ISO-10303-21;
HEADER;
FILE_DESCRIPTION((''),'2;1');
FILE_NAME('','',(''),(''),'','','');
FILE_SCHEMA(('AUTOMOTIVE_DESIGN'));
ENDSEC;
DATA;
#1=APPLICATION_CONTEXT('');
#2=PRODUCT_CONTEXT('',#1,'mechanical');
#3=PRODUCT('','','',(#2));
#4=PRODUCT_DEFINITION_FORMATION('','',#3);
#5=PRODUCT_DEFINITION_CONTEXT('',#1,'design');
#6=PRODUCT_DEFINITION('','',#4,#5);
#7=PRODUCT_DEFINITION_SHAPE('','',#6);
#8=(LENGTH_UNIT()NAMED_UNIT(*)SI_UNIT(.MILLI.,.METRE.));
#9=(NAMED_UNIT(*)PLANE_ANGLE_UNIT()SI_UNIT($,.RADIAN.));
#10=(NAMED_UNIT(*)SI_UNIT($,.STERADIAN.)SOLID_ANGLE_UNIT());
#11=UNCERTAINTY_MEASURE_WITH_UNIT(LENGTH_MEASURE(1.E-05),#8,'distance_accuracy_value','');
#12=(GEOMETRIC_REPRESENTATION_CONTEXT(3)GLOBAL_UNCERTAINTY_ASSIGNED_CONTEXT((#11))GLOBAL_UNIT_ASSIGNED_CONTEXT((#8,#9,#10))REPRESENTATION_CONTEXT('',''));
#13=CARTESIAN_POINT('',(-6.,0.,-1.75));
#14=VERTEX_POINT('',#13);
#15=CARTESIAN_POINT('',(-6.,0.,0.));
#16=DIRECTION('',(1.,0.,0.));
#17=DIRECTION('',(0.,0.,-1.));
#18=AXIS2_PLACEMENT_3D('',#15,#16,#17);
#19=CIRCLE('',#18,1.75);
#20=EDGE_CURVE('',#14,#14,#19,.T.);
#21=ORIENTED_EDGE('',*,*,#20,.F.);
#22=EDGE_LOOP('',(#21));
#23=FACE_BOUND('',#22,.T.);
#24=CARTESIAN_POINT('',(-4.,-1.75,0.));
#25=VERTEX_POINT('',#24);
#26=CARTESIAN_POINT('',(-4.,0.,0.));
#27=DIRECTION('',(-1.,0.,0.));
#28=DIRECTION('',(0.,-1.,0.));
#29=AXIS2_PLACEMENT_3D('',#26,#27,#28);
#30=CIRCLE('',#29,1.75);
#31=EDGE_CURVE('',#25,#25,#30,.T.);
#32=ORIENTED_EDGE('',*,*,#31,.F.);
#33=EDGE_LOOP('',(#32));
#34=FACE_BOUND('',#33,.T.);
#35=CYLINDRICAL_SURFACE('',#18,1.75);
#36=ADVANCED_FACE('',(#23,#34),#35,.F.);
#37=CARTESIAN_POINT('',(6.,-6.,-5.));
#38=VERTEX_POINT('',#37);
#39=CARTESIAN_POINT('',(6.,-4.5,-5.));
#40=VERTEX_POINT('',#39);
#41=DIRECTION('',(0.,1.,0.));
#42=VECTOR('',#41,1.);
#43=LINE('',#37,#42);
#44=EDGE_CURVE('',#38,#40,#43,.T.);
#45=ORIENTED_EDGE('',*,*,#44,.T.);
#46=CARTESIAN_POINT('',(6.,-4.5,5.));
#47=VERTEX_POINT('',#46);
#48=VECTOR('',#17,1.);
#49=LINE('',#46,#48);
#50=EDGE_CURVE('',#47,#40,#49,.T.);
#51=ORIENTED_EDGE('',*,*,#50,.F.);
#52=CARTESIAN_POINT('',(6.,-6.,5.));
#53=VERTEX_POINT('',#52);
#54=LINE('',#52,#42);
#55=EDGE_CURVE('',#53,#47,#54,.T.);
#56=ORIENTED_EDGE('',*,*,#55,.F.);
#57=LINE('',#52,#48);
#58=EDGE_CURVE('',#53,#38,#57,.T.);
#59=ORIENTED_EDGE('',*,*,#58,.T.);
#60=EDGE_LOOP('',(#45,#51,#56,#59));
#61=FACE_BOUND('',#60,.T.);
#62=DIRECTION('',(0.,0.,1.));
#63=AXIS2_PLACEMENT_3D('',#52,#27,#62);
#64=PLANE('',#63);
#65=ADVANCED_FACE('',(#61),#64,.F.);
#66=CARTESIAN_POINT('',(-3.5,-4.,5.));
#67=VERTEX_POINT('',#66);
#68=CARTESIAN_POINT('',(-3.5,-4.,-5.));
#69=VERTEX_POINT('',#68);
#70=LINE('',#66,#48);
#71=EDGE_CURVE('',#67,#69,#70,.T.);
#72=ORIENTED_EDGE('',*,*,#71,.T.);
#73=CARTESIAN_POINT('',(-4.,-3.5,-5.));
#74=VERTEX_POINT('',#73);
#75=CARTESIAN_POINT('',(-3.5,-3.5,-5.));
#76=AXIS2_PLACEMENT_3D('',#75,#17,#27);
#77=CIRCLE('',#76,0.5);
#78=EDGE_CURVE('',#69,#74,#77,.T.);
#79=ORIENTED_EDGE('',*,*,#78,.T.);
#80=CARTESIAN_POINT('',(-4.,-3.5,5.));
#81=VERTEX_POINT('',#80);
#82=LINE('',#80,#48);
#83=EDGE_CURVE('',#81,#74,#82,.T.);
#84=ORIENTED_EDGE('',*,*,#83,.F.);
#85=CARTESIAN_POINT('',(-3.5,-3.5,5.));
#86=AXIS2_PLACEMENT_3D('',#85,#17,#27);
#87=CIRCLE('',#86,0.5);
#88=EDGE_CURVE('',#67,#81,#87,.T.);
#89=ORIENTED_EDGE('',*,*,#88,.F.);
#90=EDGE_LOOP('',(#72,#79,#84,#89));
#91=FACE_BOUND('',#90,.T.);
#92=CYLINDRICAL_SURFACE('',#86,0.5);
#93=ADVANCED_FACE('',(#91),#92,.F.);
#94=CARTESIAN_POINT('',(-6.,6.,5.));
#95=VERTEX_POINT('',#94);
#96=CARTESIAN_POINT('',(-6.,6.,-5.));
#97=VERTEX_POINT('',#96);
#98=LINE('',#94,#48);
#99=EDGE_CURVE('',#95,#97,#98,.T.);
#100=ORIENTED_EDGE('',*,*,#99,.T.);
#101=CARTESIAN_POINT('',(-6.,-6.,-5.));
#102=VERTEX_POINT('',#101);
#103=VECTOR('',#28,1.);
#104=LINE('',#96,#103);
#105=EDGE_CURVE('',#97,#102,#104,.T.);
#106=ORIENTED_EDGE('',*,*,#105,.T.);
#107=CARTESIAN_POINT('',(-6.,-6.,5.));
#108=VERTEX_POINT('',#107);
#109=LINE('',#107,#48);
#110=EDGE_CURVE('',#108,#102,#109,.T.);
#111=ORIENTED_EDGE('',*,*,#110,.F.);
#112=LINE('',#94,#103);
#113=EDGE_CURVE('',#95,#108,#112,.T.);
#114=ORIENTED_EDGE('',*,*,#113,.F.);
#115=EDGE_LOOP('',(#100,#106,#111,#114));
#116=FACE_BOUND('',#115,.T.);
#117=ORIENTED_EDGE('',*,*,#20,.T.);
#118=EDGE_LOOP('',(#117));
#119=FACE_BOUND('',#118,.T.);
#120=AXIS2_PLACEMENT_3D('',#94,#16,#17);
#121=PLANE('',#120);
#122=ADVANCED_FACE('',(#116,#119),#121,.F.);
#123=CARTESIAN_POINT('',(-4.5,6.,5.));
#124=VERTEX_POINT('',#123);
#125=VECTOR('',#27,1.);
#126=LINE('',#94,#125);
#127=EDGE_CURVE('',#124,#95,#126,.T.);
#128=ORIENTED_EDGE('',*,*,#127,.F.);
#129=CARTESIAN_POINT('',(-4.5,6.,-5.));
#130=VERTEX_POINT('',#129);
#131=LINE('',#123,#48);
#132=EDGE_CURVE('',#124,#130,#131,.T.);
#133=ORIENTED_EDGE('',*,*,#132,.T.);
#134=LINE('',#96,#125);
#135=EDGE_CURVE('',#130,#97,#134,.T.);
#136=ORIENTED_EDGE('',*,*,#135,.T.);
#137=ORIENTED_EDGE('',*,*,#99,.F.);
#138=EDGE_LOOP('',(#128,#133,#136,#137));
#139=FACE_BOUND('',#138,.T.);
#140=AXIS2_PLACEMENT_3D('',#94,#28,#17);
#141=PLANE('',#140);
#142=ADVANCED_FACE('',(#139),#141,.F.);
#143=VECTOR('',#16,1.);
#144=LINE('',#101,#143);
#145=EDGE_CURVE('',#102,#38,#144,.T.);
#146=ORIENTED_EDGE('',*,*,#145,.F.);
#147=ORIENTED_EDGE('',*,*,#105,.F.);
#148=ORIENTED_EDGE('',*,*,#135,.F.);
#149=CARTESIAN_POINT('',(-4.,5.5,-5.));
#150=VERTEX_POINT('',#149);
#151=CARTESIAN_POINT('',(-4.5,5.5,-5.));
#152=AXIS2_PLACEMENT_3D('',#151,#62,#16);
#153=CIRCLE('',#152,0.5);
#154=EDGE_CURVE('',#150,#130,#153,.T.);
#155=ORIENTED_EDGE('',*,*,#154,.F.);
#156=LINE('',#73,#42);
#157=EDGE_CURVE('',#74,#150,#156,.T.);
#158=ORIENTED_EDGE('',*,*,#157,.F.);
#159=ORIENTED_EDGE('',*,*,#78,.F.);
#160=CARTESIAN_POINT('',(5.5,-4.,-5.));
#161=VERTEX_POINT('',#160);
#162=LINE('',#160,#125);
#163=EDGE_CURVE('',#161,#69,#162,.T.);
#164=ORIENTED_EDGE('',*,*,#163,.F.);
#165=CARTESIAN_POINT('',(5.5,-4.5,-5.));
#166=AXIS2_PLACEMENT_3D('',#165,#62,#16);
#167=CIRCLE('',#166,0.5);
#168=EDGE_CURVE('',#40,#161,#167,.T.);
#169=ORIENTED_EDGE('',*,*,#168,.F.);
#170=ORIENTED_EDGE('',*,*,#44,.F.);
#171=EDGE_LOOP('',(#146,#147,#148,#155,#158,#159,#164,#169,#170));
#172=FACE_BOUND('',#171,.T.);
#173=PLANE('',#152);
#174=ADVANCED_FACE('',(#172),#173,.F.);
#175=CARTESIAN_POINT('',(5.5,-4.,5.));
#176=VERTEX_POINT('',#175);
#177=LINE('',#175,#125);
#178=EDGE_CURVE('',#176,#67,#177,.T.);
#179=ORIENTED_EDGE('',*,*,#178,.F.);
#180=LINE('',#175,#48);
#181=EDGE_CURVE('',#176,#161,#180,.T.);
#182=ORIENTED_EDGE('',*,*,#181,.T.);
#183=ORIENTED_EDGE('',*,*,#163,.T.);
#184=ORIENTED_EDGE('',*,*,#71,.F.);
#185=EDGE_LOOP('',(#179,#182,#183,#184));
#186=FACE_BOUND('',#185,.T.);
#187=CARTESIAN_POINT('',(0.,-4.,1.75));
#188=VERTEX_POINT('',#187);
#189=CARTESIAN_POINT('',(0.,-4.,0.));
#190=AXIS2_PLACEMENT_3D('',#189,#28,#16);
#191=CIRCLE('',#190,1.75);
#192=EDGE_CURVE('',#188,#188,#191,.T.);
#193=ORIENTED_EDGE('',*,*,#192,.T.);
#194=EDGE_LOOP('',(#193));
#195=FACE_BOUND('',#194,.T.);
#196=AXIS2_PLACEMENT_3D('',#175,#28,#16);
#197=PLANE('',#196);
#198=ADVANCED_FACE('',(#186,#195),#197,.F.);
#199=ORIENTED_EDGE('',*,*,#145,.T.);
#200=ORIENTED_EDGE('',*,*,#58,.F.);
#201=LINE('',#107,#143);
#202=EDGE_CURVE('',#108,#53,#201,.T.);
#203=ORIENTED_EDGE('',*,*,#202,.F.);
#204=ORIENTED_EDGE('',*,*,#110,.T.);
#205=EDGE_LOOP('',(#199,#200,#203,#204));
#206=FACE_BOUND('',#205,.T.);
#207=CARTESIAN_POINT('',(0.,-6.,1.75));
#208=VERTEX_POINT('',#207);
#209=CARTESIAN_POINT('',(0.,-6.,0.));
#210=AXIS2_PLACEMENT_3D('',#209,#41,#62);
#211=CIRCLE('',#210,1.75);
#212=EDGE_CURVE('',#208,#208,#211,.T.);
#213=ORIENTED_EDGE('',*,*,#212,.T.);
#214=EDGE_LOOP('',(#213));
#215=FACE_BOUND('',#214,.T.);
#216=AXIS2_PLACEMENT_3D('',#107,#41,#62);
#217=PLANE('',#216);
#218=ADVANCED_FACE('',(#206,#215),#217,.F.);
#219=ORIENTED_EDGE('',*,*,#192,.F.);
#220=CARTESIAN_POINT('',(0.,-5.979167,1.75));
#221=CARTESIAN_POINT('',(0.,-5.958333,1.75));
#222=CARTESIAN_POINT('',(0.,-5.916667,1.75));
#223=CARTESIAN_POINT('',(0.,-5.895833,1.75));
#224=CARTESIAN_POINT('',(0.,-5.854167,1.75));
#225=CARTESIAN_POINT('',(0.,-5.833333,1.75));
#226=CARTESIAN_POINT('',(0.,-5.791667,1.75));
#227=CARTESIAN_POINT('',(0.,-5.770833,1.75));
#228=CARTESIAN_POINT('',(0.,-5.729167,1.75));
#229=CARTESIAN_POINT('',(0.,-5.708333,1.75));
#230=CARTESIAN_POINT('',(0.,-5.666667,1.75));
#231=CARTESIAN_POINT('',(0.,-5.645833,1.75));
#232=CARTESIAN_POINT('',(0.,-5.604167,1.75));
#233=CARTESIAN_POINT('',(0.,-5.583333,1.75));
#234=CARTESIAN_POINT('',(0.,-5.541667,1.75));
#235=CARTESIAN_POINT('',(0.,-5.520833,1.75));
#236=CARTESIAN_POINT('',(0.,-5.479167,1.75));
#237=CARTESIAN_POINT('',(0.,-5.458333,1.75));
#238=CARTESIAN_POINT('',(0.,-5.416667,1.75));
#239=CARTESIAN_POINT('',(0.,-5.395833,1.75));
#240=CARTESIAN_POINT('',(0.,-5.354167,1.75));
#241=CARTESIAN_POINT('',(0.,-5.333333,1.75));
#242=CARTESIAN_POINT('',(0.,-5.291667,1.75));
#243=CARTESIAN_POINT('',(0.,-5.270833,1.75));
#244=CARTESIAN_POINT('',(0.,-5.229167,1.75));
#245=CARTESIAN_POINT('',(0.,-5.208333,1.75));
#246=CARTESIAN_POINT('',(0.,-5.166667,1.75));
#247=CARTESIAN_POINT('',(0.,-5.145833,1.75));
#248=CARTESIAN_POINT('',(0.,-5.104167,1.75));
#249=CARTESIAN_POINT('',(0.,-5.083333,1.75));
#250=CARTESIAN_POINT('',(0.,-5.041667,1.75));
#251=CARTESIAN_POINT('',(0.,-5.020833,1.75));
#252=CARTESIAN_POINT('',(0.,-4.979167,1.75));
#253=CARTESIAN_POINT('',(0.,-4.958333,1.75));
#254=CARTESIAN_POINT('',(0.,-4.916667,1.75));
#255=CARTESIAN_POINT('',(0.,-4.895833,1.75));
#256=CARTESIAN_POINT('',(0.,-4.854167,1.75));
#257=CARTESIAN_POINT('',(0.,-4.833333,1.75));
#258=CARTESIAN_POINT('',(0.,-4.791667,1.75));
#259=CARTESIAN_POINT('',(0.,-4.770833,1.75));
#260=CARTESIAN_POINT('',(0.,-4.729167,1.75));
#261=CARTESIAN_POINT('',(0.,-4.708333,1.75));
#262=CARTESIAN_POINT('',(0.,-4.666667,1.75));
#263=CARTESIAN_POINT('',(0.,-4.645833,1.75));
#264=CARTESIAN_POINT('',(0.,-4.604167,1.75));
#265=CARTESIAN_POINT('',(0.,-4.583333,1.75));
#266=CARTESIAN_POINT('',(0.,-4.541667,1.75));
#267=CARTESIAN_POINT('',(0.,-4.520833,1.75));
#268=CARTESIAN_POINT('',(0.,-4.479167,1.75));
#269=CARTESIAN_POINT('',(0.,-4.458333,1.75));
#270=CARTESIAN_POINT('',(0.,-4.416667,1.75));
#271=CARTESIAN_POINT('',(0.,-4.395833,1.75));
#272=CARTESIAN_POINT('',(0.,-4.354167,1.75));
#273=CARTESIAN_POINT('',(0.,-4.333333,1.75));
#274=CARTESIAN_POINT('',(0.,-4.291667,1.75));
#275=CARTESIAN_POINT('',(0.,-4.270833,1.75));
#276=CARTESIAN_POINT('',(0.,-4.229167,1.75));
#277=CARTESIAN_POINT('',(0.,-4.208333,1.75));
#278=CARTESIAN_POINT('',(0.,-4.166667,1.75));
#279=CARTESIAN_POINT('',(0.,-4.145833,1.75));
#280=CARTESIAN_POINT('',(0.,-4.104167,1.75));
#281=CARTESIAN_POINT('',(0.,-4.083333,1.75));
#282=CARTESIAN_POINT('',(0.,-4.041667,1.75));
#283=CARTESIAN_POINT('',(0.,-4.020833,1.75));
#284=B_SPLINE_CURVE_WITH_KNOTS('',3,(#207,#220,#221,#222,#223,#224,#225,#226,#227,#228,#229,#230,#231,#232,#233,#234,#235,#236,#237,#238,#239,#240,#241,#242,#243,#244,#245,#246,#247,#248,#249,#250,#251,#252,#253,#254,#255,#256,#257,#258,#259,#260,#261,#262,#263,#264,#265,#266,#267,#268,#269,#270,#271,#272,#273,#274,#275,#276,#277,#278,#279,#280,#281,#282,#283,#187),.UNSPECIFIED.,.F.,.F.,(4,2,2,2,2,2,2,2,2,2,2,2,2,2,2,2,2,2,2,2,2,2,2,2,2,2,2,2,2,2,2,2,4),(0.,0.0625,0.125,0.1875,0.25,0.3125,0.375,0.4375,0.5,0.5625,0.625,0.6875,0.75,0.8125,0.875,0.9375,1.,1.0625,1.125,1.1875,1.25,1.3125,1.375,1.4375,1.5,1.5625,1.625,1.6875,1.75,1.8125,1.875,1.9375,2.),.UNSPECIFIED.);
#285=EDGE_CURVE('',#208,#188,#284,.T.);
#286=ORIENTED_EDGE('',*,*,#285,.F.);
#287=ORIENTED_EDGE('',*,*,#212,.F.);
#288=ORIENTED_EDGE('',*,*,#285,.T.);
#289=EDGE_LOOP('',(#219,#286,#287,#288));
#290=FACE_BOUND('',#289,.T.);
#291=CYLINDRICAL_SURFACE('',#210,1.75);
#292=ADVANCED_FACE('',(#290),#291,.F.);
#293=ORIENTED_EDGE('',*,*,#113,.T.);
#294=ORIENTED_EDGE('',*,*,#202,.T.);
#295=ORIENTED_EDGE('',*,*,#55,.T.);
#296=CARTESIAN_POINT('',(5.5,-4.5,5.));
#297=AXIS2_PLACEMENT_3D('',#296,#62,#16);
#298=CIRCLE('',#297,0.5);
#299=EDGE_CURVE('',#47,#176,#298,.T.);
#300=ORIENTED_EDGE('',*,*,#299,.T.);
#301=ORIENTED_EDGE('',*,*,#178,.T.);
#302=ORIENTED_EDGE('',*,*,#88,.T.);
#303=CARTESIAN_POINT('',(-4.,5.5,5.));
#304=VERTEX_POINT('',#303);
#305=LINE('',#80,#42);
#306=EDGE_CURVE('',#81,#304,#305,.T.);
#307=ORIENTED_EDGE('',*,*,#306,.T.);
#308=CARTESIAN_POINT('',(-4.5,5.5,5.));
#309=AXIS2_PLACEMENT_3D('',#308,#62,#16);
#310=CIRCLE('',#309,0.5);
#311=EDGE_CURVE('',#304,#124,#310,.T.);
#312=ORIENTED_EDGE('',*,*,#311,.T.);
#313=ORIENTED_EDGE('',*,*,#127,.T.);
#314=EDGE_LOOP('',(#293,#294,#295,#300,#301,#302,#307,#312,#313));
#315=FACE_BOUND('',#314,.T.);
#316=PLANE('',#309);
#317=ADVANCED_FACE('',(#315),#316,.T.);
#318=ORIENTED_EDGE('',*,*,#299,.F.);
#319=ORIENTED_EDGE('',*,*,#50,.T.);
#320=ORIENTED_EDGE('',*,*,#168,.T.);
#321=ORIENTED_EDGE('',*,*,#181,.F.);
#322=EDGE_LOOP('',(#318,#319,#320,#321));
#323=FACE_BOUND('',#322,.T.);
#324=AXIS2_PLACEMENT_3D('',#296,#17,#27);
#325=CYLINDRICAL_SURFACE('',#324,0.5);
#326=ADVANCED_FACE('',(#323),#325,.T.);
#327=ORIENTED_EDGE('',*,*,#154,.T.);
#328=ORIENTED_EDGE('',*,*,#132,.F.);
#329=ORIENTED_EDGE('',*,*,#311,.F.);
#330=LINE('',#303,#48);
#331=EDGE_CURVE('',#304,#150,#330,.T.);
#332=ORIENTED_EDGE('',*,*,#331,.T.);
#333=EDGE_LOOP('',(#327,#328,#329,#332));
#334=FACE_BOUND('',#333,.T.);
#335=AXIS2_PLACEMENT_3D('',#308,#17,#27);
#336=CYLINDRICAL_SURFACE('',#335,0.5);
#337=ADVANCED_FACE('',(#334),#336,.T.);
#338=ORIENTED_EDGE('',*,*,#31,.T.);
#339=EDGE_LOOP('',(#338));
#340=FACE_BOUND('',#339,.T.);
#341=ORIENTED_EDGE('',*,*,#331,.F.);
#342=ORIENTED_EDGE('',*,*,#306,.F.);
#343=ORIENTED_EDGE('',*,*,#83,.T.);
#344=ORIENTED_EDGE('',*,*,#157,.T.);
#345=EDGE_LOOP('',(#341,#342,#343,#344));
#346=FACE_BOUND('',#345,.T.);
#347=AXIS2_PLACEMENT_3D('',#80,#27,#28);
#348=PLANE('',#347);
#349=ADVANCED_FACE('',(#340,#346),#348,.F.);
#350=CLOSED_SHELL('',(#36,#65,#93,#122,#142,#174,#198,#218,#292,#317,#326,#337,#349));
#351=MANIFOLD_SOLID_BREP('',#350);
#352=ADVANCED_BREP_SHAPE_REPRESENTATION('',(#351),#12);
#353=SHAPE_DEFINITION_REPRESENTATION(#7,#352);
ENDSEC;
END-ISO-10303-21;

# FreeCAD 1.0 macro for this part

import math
import FreeCAD as App
import Part
import Sketcher
from FreeCAD import Vector
Q = App.Units.Quantity

doc = App.newDocument("Part")
body = doc.addObject("PartDesign::Body", "Body")

sketch1 = doc.addObject("Sketcher::SketchObject", "Sketch")
body.addObject(sketch1)
sketch1.AttachmentSupport = (doc.XY_Plane, [""])
sketch1.MapMode = "FlatFace"
sketch1.AttachmentOffset = App.Placement(Vector(0, 0, -5), App.Rotation())
sketch1.addGeometry([
    Part.LineSegment(Vector(-6, 6, 0), Vector(-6, -6, 0)),
    Part.LineSegment(Vector(-6, -6, 0), Vector(6, -6, 0)),
    Part.LineSegment(Vector(6, -6, 0), Vector(6, -4.5, 0)),
    Part.ArcOfCircle(Part.Circle(Vector(5.5, -4.5, 0), Vector(0, 0, 1), 0.5), math.radians(0), math.radians(90)),
    Part.LineSegment(Vector(5.5, -4, 0), Vector(-3.5, -4, 0)),
    Part.ArcOfCircle(Part.Circle(Vector(-3.5, -3.5, 0), Vector(0, 0, 1), 0.5), math.radians(180), math.radians(270)),
    Part.LineSegment(Vector(-4, -3.5, 0), Vector(-4, 5.5, 0)),
    Part.ArcOfCircle(Part.Circle(Vector(-4.5, 5.5, 0), Vector(0, 0, 1), 0.5), math.radians(0), math.radians(90)),
    Part.LineSegment(Vector(-4.5, 6, 0), Vector(-6, 6, 0)),
], False)
sketch1.addConstraint([
    Sketcher.Constraint("Coincident", 0, 2, 1, 1),
    Sketcher.Constraint("Coincident", 1, 2, 2, 1),
    Sketcher.Constraint("Tangent", 2, 2, 3, 1),
    Sketcher.Constraint("Tangent", 3, 2, 4, 1),
    Sketcher.Constraint("Tangent", 4, 2, 5, 2),
    Sketcher.Constraint("Tangent", 5, 1, 6, 1),
    Sketcher.Constraint("Tangent", 6, 2, 7, 1),
    Sketcher.Constraint("Tangent", 7, 2, 8, 1),
    Sketcher.Constraint("Coincident", 8, 2, 0, 1),
    Sketcher.Constraint("Vertical", 0),
    Sketcher.Constraint("Horizontal", 1),
    Sketcher.Constraint("Vertical", 2),
    Sketcher.Constraint("Horizontal", 4),
    Sketcher.Constraint("Vertical", 6),
    Sketcher.Constraint("Horizontal", 8),
    Sketcher.Constraint("Equal", 3, 5),
    Sketcher.Constraint("Equal", 5, 7),
    Sketcher.Constraint("Symmetric", 1, 2, 8, 2, -1, 1),
    Sketcher.Constraint("Equal", 1, 0),
    Sketcher.Constraint("Equal", 8, 2),
    Sketcher.Constraint("Radius", 3, Q("0.5 mm")),
    Sketcher.Constraint("DistanceX", 1, 1, 1, 2, Q("12 mm")),
    Sketcher.Constraint("DistanceX", 4, 2, 4, 1, Q("9 mm")),
])
pad1 = doc.addObject("PartDesign::Pad", "Pad")
body.addObject(pad1)
pad1.Profile = sketch1
pad1.Length = 10

sketch2 = doc.addObject("Sketcher::SketchObject", "Sketch001")
body.addObject(sketch2)
sketch2.AttachmentSupport = (doc.YZ_Plane, [""])
sketch2.MapMode = "FlatFace"
sketch2.addGeometry(Part.Circle(Vector(0, 0, 0), Vector(0, 0, 1), 1.75), False)
sketch2.addConstraint([
    Sketcher.Constraint("Coincident", 0, 3, -1, 1),
    Sketcher.Constraint("Diameter", 0, Q("3.5 mm")),
])
pocket1 = doc.addObject("PartDesign::Pocket", "Pocket")
body.addObject(pocket1)
pocket1.Profile = sketch2
pocket1.Type = "ThroughAll"

sketch3 = doc.addObject("Sketcher::SketchObject", "Sketch002")
body.addObject(sketch3)
sketch3.AttachmentSupport = (doc.XZ_Plane, [""])
sketch3.MapMode = "FlatFace"
sketch3.addGeometry(Part.Circle(Vector(0, 0, 0), Vector(0, 0, 1), 1.75), False)
sketch3.addConstraint([
    Sketcher.Constraint("Coincident", 0, 3, -1, 1),
    Sketcher.Constraint("Diameter", 0, Q("3.5 mm")),
])
pocket2 = doc.addObject("PartDesign::Pocket", "Pocket001")
body.addObject(pocket2)
pocket2.Profile = sketch3
pocket2.Type = "ThroughAll"
pocket2.Reversed = True

doc.recompute()
